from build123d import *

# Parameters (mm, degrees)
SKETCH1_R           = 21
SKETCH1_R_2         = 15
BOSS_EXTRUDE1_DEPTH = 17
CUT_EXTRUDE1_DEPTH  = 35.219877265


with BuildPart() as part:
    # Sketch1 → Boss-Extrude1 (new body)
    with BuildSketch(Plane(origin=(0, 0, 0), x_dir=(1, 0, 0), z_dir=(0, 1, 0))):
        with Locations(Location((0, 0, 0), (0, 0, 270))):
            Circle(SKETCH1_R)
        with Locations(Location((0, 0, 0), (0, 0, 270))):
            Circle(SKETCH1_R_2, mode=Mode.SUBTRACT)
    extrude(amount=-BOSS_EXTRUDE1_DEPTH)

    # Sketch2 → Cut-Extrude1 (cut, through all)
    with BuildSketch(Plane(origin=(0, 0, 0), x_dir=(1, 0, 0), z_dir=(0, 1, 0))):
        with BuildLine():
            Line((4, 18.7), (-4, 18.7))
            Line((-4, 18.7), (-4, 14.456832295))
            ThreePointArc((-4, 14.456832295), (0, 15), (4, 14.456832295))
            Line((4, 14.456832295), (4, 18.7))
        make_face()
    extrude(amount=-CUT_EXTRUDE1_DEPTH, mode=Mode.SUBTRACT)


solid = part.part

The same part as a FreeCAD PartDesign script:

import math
import FreeCAD as App
import Part
import Sketcher
from FreeCAD import Vector
Q = App.Units.Quantity

doc = App.newDocument("Part")
body = doc.addObject("PartDesign::Body", "Body")

# Sketch on XZ plane
sketch1 = doc.addObject("Sketcher::SketchObject", "Sketch")
body.addObject(sketch1)
sketch1.AttachmentSupport = (doc.XZ_Plane, [""])
sketch1.MapMode = "FlatFace"
sketch1.addGeometry(Part.Circle(Vector(0, 0, 0), Vector(0, 0, 1), 21), False)
sketch1.addGeometry(Part.Circle(Vector(0, 0, 0), Vector(0, 0, 1), 15), False)
sketch1.addConstraint(Sketcher.Constraint("Coincident", 0, 3, -1, 1))
sketch1.addConstraint(Sketcher.Constraint("Coincident", 1, 3, -1, 1))
sketch1.addConstraint(Sketcher.Constraint("Diameter", 0, Q("42 mm")))
sketch1.addConstraint(Sketcher.Constraint("Diameter", 1, Q("30 mm")))
pad1 = doc.addObject("PartDesign::Pad", "Pad")
body.addObject(pad1)
pad1.Profile = sketch1
pad1.Length = 17

# Sketch on XZ plane
sketch2 = doc.addObject("Sketcher::SketchObject", "Sketch001")
body.addObject(sketch2)
sketch2.AttachmentSupport = (doc.XZ_Plane, [""])
sketch2.MapMode = "FlatFace"
sketch2.addGeometry(Part.LineSegment(Vector(4, -18.7, 0), Vector(-4, -18.7, 0)), False)
sketch2.addGeometry(Part.LineSegment(Vector(-4, -18.7, 0), Vector(-4, -14.5, 0)), False)
sketch2.addGeometry(Part.ArcOfCircle(Part.Circle(Vector(0, 0, 0), Vector(0, 0, 1), 15), math.radians(-105), math.radians(-75)), False)
sketch2.addGeometry(Part.LineSegment(Vector(4, -14.5, 0), Vector(4, -18.7, 0)), False)
sketch2.addConstraint(Sketcher.Constraint("Coincident", 0, 2, 1, 1))
sketch2.addConstraint(Sketcher.Constraint("Coincident", 1, 2, 2, 1))
sketch2.addConstraint(Sketcher.Constraint("Coincident", 2, 2, 3, 1))
sketch2.addConstraint(Sketcher.Constraint("Coincident", 3, 2, 0, 1))
sketch2.addConstraint(Sketcher.Constraint("Horizontal", 0))
sketch2.addConstraint(Sketcher.Constraint("Vertical", 1))
sketch2.addConstraint(Sketcher.Constraint("Vertical", 3))
sketch2.addConstraint(Sketcher.Constraint("Coincident", 2, 3, -1, 1))
sketch2.addConstraint(Sketcher.Constraint("Horizontal", 1, 2, 2, 2))
sketch2.addConstraint(Sketcher.Constraint("Radius", 2, Q("15 mm")))
sketch2.addConstraint(Sketcher.Constraint("DistanceX", 0, 2, 0, 1, Q("8 mm")))
sketch2.addConstraint(Sketcher.Constraint("DistanceY", 0, 2, -1, 1, Q("18.7 mm")))
pocket1 = doc.addObject("PartDesign::Pocket", "Pocket")
body.addObject(pocket1)
pocket1.Profile = sketch2
pocket1.Type = "ThroughAll"
pocket1.Reversed = True

doc.recompute()
